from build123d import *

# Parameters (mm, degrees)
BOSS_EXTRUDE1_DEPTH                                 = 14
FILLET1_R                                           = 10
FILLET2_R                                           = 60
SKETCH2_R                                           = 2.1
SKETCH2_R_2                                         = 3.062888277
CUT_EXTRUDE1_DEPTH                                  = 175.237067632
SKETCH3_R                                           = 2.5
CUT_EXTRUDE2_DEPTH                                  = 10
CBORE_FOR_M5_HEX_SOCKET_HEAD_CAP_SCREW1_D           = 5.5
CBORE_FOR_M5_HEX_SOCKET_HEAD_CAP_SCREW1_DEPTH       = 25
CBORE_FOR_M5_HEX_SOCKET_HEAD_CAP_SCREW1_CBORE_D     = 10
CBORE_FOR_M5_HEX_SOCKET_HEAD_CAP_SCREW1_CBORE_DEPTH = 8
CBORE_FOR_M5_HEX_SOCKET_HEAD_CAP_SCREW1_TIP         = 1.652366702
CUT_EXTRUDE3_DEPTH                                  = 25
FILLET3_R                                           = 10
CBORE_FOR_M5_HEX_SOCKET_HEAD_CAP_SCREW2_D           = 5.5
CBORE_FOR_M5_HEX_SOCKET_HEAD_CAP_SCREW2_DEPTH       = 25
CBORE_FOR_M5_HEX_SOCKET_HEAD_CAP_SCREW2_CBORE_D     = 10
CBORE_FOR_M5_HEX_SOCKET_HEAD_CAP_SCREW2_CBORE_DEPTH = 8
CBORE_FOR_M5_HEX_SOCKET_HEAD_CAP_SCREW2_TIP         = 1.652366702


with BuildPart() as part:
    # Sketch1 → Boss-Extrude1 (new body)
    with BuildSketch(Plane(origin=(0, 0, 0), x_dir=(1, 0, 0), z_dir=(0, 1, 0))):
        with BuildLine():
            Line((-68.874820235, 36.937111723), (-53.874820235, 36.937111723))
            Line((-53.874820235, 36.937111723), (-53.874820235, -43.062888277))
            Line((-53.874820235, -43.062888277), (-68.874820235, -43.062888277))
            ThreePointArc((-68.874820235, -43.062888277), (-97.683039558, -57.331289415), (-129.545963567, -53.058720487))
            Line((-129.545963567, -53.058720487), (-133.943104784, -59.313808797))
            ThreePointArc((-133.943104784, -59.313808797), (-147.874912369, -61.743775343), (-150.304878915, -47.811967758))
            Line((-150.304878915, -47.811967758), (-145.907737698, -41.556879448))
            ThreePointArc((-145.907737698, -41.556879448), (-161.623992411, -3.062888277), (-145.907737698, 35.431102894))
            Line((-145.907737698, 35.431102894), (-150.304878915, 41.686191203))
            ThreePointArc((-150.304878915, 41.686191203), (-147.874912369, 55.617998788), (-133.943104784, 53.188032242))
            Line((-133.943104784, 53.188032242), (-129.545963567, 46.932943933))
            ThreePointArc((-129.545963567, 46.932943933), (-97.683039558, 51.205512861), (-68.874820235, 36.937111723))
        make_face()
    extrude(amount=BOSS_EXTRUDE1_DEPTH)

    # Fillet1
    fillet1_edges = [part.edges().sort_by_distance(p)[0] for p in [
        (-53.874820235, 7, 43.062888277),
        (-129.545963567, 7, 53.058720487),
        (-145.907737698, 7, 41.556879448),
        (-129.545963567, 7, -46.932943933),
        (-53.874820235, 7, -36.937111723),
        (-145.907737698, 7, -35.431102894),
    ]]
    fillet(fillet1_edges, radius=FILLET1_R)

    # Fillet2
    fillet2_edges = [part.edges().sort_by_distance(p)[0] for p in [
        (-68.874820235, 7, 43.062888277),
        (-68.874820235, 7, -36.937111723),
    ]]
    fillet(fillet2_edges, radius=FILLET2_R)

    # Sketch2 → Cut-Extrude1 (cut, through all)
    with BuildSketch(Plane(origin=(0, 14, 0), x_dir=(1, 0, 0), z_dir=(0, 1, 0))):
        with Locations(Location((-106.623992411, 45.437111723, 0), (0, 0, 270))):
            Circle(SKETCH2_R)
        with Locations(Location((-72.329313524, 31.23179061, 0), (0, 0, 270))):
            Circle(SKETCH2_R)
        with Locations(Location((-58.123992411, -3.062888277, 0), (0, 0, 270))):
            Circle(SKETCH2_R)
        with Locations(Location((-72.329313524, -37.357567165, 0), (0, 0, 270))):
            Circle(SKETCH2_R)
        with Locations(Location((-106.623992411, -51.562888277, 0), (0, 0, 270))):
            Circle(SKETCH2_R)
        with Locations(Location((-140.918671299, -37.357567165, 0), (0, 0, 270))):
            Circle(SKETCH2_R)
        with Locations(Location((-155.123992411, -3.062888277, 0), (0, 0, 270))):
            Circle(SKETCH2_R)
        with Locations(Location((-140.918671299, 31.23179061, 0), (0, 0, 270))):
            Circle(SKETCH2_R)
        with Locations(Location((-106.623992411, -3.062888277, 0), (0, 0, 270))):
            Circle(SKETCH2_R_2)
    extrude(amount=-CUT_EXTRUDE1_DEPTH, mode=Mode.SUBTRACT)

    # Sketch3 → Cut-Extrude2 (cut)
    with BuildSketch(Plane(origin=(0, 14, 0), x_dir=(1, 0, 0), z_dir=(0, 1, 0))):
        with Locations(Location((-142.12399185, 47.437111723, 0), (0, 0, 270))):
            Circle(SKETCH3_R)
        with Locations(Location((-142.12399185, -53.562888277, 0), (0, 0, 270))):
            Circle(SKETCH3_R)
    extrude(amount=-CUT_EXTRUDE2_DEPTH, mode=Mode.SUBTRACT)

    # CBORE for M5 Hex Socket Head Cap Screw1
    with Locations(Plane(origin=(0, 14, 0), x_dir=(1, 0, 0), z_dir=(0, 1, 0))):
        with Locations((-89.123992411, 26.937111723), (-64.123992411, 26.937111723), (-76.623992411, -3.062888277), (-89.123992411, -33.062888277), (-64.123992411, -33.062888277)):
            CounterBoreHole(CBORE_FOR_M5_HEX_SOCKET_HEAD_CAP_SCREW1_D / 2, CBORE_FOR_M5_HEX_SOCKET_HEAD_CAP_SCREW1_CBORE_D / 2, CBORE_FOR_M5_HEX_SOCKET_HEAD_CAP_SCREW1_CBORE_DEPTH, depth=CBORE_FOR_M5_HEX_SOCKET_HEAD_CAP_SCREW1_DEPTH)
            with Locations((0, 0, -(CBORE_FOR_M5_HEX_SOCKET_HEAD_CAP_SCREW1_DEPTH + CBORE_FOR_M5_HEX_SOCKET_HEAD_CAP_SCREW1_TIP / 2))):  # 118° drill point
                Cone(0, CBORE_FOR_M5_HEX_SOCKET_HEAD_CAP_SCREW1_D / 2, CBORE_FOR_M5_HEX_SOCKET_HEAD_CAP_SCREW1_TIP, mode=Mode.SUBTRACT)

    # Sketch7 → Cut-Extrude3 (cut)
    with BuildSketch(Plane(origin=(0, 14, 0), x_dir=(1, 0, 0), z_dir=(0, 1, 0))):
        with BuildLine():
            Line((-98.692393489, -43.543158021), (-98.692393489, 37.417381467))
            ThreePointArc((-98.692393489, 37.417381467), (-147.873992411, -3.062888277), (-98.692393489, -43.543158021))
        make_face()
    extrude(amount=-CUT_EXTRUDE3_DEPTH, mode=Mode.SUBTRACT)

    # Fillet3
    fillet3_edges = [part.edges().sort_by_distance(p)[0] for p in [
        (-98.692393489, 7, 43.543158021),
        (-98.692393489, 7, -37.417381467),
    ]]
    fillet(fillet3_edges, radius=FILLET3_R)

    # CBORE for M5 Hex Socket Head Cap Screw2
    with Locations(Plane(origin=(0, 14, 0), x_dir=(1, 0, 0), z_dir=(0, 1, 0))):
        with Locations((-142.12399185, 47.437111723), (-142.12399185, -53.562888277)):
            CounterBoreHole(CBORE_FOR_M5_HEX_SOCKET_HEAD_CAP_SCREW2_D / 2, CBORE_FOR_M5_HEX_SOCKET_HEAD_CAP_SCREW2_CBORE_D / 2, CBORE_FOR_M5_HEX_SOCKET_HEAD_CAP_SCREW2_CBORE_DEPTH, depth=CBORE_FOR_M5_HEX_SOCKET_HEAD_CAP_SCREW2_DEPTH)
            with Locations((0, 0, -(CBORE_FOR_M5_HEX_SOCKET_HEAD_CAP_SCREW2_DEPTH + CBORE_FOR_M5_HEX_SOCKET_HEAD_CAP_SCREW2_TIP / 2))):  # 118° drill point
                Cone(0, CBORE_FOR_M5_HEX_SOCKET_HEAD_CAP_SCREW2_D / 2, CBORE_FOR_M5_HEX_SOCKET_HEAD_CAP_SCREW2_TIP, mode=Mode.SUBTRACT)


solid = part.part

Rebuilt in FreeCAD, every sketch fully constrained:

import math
import FreeCAD as App
import Part
import Sketcher

V = App.Vector


def edges_at(feature, points):
    """Names of the edges that pass closest to the given points."""
    edges = feature.Shape.Edges
    near = lambda p: min(range(len(edges)), key=lambda i: edges[i].distToShape(Part.Vertex(*p))[0])
    return sorted({f"Edge{near(p) + 1}" for p in points})

doc = App.newDocument("Part")
params = doc.addObject("Spreadsheet::Sheet", "Params")
for row, (alias, value) in enumerate([
    ("sketch1_radius", "55 mm"),
    ("sketch1_radius2", "10 mm"),
    ("sketch1_width", "15 mm"),
    ("sketch1_height", "80 mm"),
    ("pad1_length", "14 mm"),
    ("fillet_radius", "10 mm"),
    ("fillet2_radius", "60 mm"),
    ("sketch2_diameter", "4.2 mm"),
    ("sketch3_diameter", "5 mm"),
    ("pocket2_length", "10 mm"),
    ("sketch4_diameter", "5.5 mm"),
    ("hole_diameter", "5.5 mm"),
    ("hole_depth", "25 mm"),
    ("hole_cbore_diameter", "10 mm"),
    ("hole_cbore_depth", "8 mm"),
    ("sketch5_radius", "41.25 mm"),
    ("pocket3_length", "25 mm"),
    ("fillet3_radius", "10 mm"),
    ("sketch6_diameter", "5.5 mm"),
    ("hole2_diameter", "5.5 mm"),
    ("hole2_depth", "25 mm"),
    ("hole2_cbore_diameter", "10 mm"),
    ("hole2_cbore_depth", "8 mm"),
], start=1):
    params.set(f"A{row}", alias)
    params.set(f"B{row}", "=" + value)
    params.setAlias(f"B{row}", alias)

body = doc.addObject("PartDesign::Body", "Body")

# Sketch on XZ plane
sketch1 = body.newObject("Sketcher::SketchObject", "Sketch")
sketch1.AttachmentSupport = (doc.getObject("XZ_Plane"), [""])
sketch1.MapMode = "FlatFace"
sketch1.addGeometry(Part.LineSegment(V(-54, -37, 0), V(-69, -37, 0)), False)
sketch1.addGeometry(Part.ArcOfCircle(Part.Circle(V(-107, 3, 0), V(0, 0, 1), 55), math.radians(-115), math.radians(-47)), False)
sketch1.addGeometry(Part.LineSegment(V(-130, -47, 0), V(-134, -53, 0)), False)
sketch1.addGeometry(Part.ArcOfCircle(Part.Circle(V(-142, -47, 0), V(0, 0, 1), 10), math.radians(145), math.radians(325)), False)
sketch1.addGeometry(Part.LineSegment(V(-150, -42, 0), V(-146, -35, 0)), False)
sketch1.addGeometry(Part.ArcOfCircle(Part.Circle(V(-107, 3, 0), V(0, 0, 1), 55), math.radians(136), math.radians(224)), False)
sketch1.addGeometry(Part.LineSegment(V(-146, 42, 0), V(-150, 48, 0)), False)
sketch1.addGeometry(Part.ArcOfCircle(Part.Circle(V(-142, 54, 0), V(0, 0, 1), 10), math.radians(35), math.radians(215)), False)
sketch1.addGeometry(Part.LineSegment(V(-134, 59, 0), V(-130, 53, 0)), False)
sketch1.addGeometry(Part.ArcOfCircle(Part.Circle(V(-107, 3, 0), V(0, 0, 1), 55), math.radians(47), math.radians(115)), False)
sketch1.addGeometry(Part.LineSegment(V(-69, 43, 0), V(-54, 43, 0)), False)
sketch1.addGeometry(Part.LineSegment(V(-54, 43, 0), V(-54, -37, 0)), False)
sketch1.addConstraint(Sketcher.Constraint("Coincident", 0, 2, 1, 2))
sketch1.addConstraint(Sketcher.Constraint("Coincident", 1, 1, 2, 1))
sketch1.addConstraint(Sketcher.Constraint("Tangent", 2, 2, 3, 2))
sketch1.addConstraint(Sketcher.Constraint("Tangent", 3, 1, 4, 1))
sketch1.addConstraint(Sketcher.Constraint("Coincident", 4, 2, 5, 2))
sketch1.addConstraint(Sketcher.Constraint("Coincident", 5, 1, 6, 1))
sketch1.addConstraint(Sketcher.Constraint("Tangent", 6, 2, 7, 2))
sketch1.addConstraint(Sketcher.Constraint("Tangent", 7, 1, 8, 1))
sketch1.addConstraint(Sketcher.Constraint("Coincident", 8, 2, 9, 2))
sketch1.addConstraint(Sketcher.Constraint("Coincident", 9, 1, 10, 1))
sketch1.addConstraint(Sketcher.Constraint("Coincident", 10, 2, 11, 1))
sketch1.addConstraint(Sketcher.Constraint("Coincident", 11, 2, 0, 1))
sketch1.addConstraint(Sketcher.Constraint("Horizontal", 0))
sketch1.addConstraint(Sketcher.Constraint("Horizontal", 10))
sketch1.addConstraint(Sketcher.Constraint("Vertical", 11))
sketch1.addConstraint(Sketcher.Constraint("Coincident", 5, 3, 1, 3))
sketch1.addConstraint(Sketcher.Constraint("Coincident", 9, 3, 1, 3))
sketch1.addConstraint(Sketcher.Constraint("Equal", 1, 5))
sketch1.addConstraint(Sketcher.Constraint("Equal", 3, 7))
sketch1.addConstraint(Sketcher.Constraint("Equal", 5, 9))
sketch1.addConstraint(Sketcher.Constraint("Parallel", 2, 4))
sketch1.addConstraint(Sketcher.Constraint("Parallel", 6, 8))
sketch1.addConstraint(Sketcher.Constraint("Vertical", 3, 3, 7, 3))
sketch1.addConstraint(Sketcher.Constraint("Vertical", 4, 2, 5, 1))
sketch1.addConstraint(Sketcher.Constraint("Vertical", 3, 1, 6, 2))
sketch1.addConstraint(Sketcher.Constraint("Vertical", 0, 2, 9, 1))
sketch1.addConstraint(Sketcher.Constraint("Equal", 2, 4))
sketch1.addConstraint(Sketcher.Constraint("Radius", 1, 55.0))
sketch1.addConstraint(Sketcher.Constraint("Radius", 3, 10.0))
sketch1.addConstraint(Sketcher.Constraint("DistanceX", 0, 2, 0, 1, 15.0))
sketch1.addConstraint(Sketcher.Constraint("DistanceY", 11, 2, 11, 1, 80.0))
sketch1.addConstraint(Sketcher.Constraint("DistanceY", 3, 3, 7, 3, 101.0))
sketch1.addConstraint(Sketcher.Constraint("DistanceX", 3, 3, 1, 3, 35.499999))
sketch1.addConstraint(Sketcher.Constraint("DistanceY", -1, 1, 1, 3, 3.062888))
sketch1.addConstraint(Sketcher.Constraint("DistanceX", 3, 3, -1, 1, 142.123992))
sketch1.setExpression("Constraints[27]", "Params.sketch1_radius")
sketch1.setExpression("Constraints[28]", "Params.sketch1_radius2")
sketch1.setExpression("Constraints[29]", "Params.sketch1_width")
sketch1.setExpression("Constraints[30]", "Params.sketch1_height")
pad1 = body.newObject("PartDesign::Pad", "Pad")
pad1.Profile = sketch1
pad1.setExpression("Length", "Params.pad1_length")
pad1.Reversed = True
doc.recompute()

fillet = body.newObject("PartDesign::Fillet", "Fillet")
fillet.Base = (pad1, edges_at(pad1, [
    (-53.875, 7, 43.063),
    (-129.546, 7, 53.059),
    (-145.908, 7, 41.557),
    (-129.546, 7, -46.933),
    (-53.875, 7, -36.937),
    (-145.908, 7, -35.431),
]))
fillet.setExpression("Radius", "Params.fillet_radius")
doc.recompute()

fillet2 = body.newObject("PartDesign::Fillet", "Fillet001")
fillet2.Base = (fillet, edges_at(fillet, [(-68.875, 7, 43.063), (-68.875, 7, -36.937)]))
fillet2.setExpression("Radius", "Params.fillet2_radius")

# Sketch on XZ plane
sketch2 = body.newObject("Sketcher::SketchObject", "Sketch001")
sketch2.AttachmentSupport = (doc.getObject("XZ_Plane"), [""])
sketch2.MapMode = "FlatFace"
sketch2.AttachmentOffset = App.Placement(V(0, 0, -14), App.Rotation())
sketch2.addGeometry(Part.Circle(V(-106.6, -45.4, 0), V(0, 0, 1), 2.1), False)
sketch2.addGeometry(Part.Circle(V(-72.3, -31.2, 0), V(0, 0, 1), 2.1), False)
sketch2.addGeometry(Part.Circle(V(-58.1, 3.1, 0), V(0, 0, 1), 2.1), False)
sketch2.addGeometry(Part.Circle(V(-72.3, 37.4, 0), V(0, 0, 1), 2.1), False)
sketch2.addGeometry(Part.Circle(V(-106.6, 51.6, 0), V(0, 0, 1), 2.1), False)
sketch2.addGeometry(Part.Circle(V(-140.9, 37.4, 0), V(0, 0, 1), 2.1), False)
sketch2.addGeometry(Part.Circle(V(-155.1, 3.1, 0), V(0, 0, 1), 2.1), False)
sketch2.addGeometry(Part.Circle(V(-140.9, -31.2, 0), V(0, 0, 1), 2.1), False)
sketch2.addGeometry(Part.Circle(V(-106.6, 3.1, 0), V(0, 0, 1), 3.1), False)
sketch2.addConstraint(Sketcher.Constraint("Equal", 0, 1))
sketch2.addConstraint(Sketcher.Constraint("Equal", 1, 2))
sketch2.addConstraint(Sketcher.Constraint("Equal", 2, 3))
sketch2.addConstraint(Sketcher.Constraint("Equal", 3, 4))
sketch2.addConstraint(Sketcher.Constraint("Equal", 4, 5))
sketch2.addConstraint(Sketcher.Constraint("Equal", 5, 6))
sketch2.addConstraint(Sketcher.Constraint("Equal", 6, 7))
sketch2.addConstraint(Sketcher.Constraint("Horizontal", 3, 3, 5, 3))
sketch2.addConstraint(Sketcher.Constraint("Horizontal", 2, 3, 6, 3))
sketch2.addConstraint(Sketcher.Constraint("Horizontal", 1, 3, 7, 3))
sketch2.addConstraint(Sketcher.Constraint("Horizontal", 6, 3, 8, 3))
sketch2.addConstraint(Sketcher.Constraint("Vertical", 1, 3, 3, 3))
sketch2.addConstraint(Sketcher.Constraint("Vertical", 0, 3, 4, 3))
sketch2.addConstraint(Sketcher.Constraint("Vertical", 5, 3, 7, 3))
sketch2.addConstraint(Sketcher.Constraint("Vertical", 4, 3, 8, 3))
sketch2.addConstraint(Sketcher.Constraint("Diameter", 0, 4.2))
sketch2.addConstraint(Sketcher.Constraint("DistanceY", 0, 3, 4, 3, 97.0))
sketch2.addConstraint(Sketcher.Constraint("DistanceX", 0, 3, 2, 3, 48.5))
sketch2.addConstraint(Sketcher.Constraint("DistanceY", 0, 3, 2, 3, 48.5))
sketch2.addConstraint(Sketcher.Constraint("DistanceX", 6, 3, 0, 3, 48.5))
sketch2.addConstraint(Sketcher.Constraint("Diameter", 8, 6.125777))
sketch2.addConstraint(Sketcher.Constraint("DistanceY", 0, 3, -1, 1, 45.437112))
sketch2.addConstraint(Sketcher.Constraint("DistanceY", 1, 3, -1, 1, 31.231791))
sketch2.addConstraint(Sketcher.Constraint("DistanceX", 5, 3, -1, 1, 140.918671))
sketch2.addConstraint(Sketcher.Constraint("DistanceX", 0, 3, 1, 3, 34.294679))
sketch2.addConstraint(Sketcher.Constraint("DistanceY", 2, 3, 3, 3, 34.294679))
sketch2.addConstraint(Sketcher.Constraint("DistanceX", 5, 3, 4, 3, 34.294679))
sketch2.setExpression("Constraints[15]", "Params.sketch2_diameter")
pocket1 = body.newObject("PartDesign::Pocket", "Pocket")
pocket1.Profile = sketch2
pocket1.Type = "ThroughAll"
pocket1.Reversed = True

# Sketch on XZ plane
sketch3 = body.newObject("Sketcher::SketchObject", "Sketch002")
sketch3.AttachmentSupport = (doc.getObject("XZ_Plane"), [""])
sketch3.MapMode = "FlatFace"
sketch3.AttachmentOffset = App.Placement(V(0, 0, -14), App.Rotation())
sketch3.addGeometry(Part.Circle(V(-142.1, -47.4, 0), V(0, 0, 1), 2.5), False)
sketch3.addGeometry(Part.Circle(V(-142.1, 53.6, 0), V(0, 0, 1), 2.5), False)
sketch3.addConstraint(Sketcher.Constraint("Equal", 0, 1))
sketch3.addConstraint(Sketcher.Constraint("Vertical", 0, 3, 1, 3))
sketch3.addConstraint(Sketcher.Constraint("Diameter", 0, 5.0))
sketch3.addConstraint(Sketcher.Constraint("DistanceY", 0, 3, 1, 3, 101.0))
sketch3.addConstraint(Sketcher.Constraint("DistanceX", 0, 3, -1, 1, 142.123992))
sketch3.addConstraint(Sketcher.Constraint("DistanceY", 0, 3, -1, 1, 47.437112))
sketch3.setExpression("Constraints[2]", "Params.sketch3_diameter")
pocket2 = body.newObject("PartDesign::Pocket", "Pocket001")
pocket2.Profile = sketch3
pocket2.setExpression("Length", "Params.pocket2_length")
pocket2.Reversed = True

# Sketch on XZ plane
sketch4 = body.newObject("Sketcher::SketchObject", "Sketch003")
sketch4.AttachmentSupport = (doc.getObject("XZ_Plane"), [""])
sketch4.MapMode = "FlatFace"
sketch4.AttachmentOffset = App.Placement(V(0, 0, -14), App.Rotation())
sketch4.addGeometry(Part.Circle(V(-89.1, -26.9, 0), V(0, 0, 1), 2.8), False)
sketch4.addGeometry(Part.Circle(V(-64.1, -26.9, 0), V(0, 0, 1), 2.8), False)
sketch4.addGeometry(Part.Circle(V(-76.6, 3.1, 0), V(0, 0, 1), 2.8), False)
sketch4.addGeometry(Part.Circle(V(-89.1, 33.1, 0), V(0, 0, 1), 2.8), False)
sketch4.addGeometry(Part.Circle(V(-64.1, 33.1, 0), V(0, 0, 1), 2.8), False)
sketch4.addConstraint(Sketcher.Constraint("Equal", 0, 1))
sketch4.addConstraint(Sketcher.Constraint("Equal", 1, 2))
sketch4.addConstraint(Sketcher.Constraint("Equal", 2, 3))
sketch4.addConstraint(Sketcher.Constraint("Equal", 3, 4))
sketch4.addConstraint(Sketcher.Constraint("Horizontal", 0, 3, 1, 3))
sketch4.addConstraint(Sketcher.Constraint("Horizontal", 3, 3, 4, 3))
sketch4.addConstraint(Sketcher.Constraint("Vertical", 0, 3, 3, 3))
sketch4.addConstraint(Sketcher.Constraint("Vertical", 1, 3, 4, 3))
sketch4.addConstraint(Sketcher.Constraint("Diameter", 0, 5.5))
sketch4.addConstraint(Sketcher.Constraint("DistanceX", 0, 3, 1, 3, 25.0))
sketch4.addConstraint(Sketcher.Constraint("DistanceY", 0, 3, 2, 3, 30.0))
sketch4.addConstraint(Sketcher.Constraint("DistanceY", 2, 3, 3, 3, 30.0))
sketch4.addConstraint(Sketcher.Constraint("DistanceX", 0, 3, 2, 3, 12.5))
sketch4.addConstraint(Sketcher.Constraint("DistanceY", 0, 3, -1, 1, 26.937112))
sketch4.addConstraint(Sketcher.Constraint("DistanceX", 0, 3, -1, 1, 89.123992))
sketch4.setExpression("Constraints[8]", "Params.sketch4_diameter")
doc.recompute()
hole = body.newObject("PartDesign::Hole", "Hole")
hole.Profile = sketch4
hole.ThreadType = "None"
hole.setExpression("Diameter", "Params.hole_diameter")
hole.DepthType = "Dimension"
hole.setExpression("Depth", "Params.hole_depth")
hole.DrillPoint = "Angled"
hole.DrillPointAngle = 118
hole.HoleCutType = "Counterbore"
hole.setExpression("HoleCutDiameter", "Params.hole_cbore_diameter")
hole.setExpression("HoleCutDepth", "Params.hole_cbore_depth")
hole.Reversed = True

# Sketch on XZ plane
sketch5 = body.newObject("Sketcher::SketchObject", "Sketch004")
sketch5.AttachmentSupport = (doc.getObject("XZ_Plane"), [""])
sketch5.MapMode = "FlatFace"
sketch5.AttachmentOffset = App.Placement(V(0, 0, -14), App.Rotation())
sketch5.addGeometry(Part.LineSegment(V(-99, 44, 0), V(-99, -37, 0)), False)
sketch5.addGeometry(Part.ArcOfCircle(Part.Circle(V(-107, 3, 0), V(0, 0, 1), 41), math.radians(79), math.radians(281)), False)
sketch5.addConstraint(Sketcher.Constraint("Coincident", 0, 1, 1, 1))
sketch5.addConstraint(Sketcher.Constraint("Coincident", 1, 2, 0, 2))
sketch5.addConstraint(Sketcher.Constraint("Vertical", 0))
sketch5.addConstraint(Sketcher.Constraint("Radius", 1, 41.25))
sketch5.addConstraint(Sketcher.Constraint("DistanceY", 0, 2, 0, 1, 80.960539))
sketch5.addConstraint(Sketcher.Constraint("DistanceY", -1, 1, 1, 3, 3.062888))
sketch5.addConstraint(Sketcher.Constraint("DistanceX", 1, 3, -1, 1, 106.623992))
sketch5.setExpression("Constraints[3]", "Params.sketch5_radius")
pocket3 = body.newObject("PartDesign::Pocket", "Pocket002")
pocket3.Profile = sketch5
pocket3.setExpression("Length", "Params.pocket3_length")
pocket3.Reversed = True
doc.recompute()

fillet3 = body.newObject("PartDesign::Fillet", "Fillet002")
fillet3.Base = (pocket3, edges_at(pocket3, [(-98.692, 7, 43.543), (-98.692, 7, -37.417)]))
fillet3.setExpression("Radius", "Params.fillet3_radius")

# Sketch on XZ plane
sketch6 = body.newObject("Sketcher::SketchObject", "Sketch005")
sketch6.AttachmentSupport = (doc.getObject("XZ_Plane"), [""])
sketch6.MapMode = "FlatFace"
sketch6.AttachmentOffset = App.Placement(V(0, 0, -14), App.Rotation())
sketch6.addGeometry(Part.Circle(V(-142.1, -47.4, 0), V(0, 0, 1), 2.8), False)
sketch6.addGeometry(Part.Circle(V(-142.1, 53.6, 0), V(0, 0, 1), 2.8), False)
sketch6.addConstraint(Sketcher.Constraint("Equal", 0, 1))
sketch6.addConstraint(Sketcher.Constraint("Vertical", 0, 3, 1, 3))
sketch6.addConstraint(Sketcher.Constraint("Diameter", 0, 5.5))
sketch6.addConstraint(Sketcher.Constraint("DistanceY", 0, 3, 1, 3, 101.0))
sketch6.addConstraint(Sketcher.Constraint("DistanceX", 0, 3, -1, 1, 142.123992))
sketch6.addConstraint(Sketcher.Constraint("DistanceY", 0, 3, -1, 1, 47.437112))
sketch6.setExpression("Constraints[2]", "Params.sketch6_diameter")
doc.recompute()
hole2 = body.newObject("PartDesign::Hole", "Hole001")
hole2.Profile = sketch6
hole2.ThreadType = "None"
hole2.setExpression("Diameter", "Params.hole2_diameter")
hole2.DepthType = "Dimension"
hole2.setExpression("Depth", "Params.hole2_depth")
hole2.DrillPoint = "Angled"
hole2.DrillPointAngle = 118
hole2.HoleCutType = "Counterbore"
hole2.setExpression("HoleCutDiameter", "Params.hole2_cbore_diameter")
hole2.setExpression("HoleCutDepth", "Params.hole2_cbore_depth")
hole2.Reversed = True

doc.recompute()
